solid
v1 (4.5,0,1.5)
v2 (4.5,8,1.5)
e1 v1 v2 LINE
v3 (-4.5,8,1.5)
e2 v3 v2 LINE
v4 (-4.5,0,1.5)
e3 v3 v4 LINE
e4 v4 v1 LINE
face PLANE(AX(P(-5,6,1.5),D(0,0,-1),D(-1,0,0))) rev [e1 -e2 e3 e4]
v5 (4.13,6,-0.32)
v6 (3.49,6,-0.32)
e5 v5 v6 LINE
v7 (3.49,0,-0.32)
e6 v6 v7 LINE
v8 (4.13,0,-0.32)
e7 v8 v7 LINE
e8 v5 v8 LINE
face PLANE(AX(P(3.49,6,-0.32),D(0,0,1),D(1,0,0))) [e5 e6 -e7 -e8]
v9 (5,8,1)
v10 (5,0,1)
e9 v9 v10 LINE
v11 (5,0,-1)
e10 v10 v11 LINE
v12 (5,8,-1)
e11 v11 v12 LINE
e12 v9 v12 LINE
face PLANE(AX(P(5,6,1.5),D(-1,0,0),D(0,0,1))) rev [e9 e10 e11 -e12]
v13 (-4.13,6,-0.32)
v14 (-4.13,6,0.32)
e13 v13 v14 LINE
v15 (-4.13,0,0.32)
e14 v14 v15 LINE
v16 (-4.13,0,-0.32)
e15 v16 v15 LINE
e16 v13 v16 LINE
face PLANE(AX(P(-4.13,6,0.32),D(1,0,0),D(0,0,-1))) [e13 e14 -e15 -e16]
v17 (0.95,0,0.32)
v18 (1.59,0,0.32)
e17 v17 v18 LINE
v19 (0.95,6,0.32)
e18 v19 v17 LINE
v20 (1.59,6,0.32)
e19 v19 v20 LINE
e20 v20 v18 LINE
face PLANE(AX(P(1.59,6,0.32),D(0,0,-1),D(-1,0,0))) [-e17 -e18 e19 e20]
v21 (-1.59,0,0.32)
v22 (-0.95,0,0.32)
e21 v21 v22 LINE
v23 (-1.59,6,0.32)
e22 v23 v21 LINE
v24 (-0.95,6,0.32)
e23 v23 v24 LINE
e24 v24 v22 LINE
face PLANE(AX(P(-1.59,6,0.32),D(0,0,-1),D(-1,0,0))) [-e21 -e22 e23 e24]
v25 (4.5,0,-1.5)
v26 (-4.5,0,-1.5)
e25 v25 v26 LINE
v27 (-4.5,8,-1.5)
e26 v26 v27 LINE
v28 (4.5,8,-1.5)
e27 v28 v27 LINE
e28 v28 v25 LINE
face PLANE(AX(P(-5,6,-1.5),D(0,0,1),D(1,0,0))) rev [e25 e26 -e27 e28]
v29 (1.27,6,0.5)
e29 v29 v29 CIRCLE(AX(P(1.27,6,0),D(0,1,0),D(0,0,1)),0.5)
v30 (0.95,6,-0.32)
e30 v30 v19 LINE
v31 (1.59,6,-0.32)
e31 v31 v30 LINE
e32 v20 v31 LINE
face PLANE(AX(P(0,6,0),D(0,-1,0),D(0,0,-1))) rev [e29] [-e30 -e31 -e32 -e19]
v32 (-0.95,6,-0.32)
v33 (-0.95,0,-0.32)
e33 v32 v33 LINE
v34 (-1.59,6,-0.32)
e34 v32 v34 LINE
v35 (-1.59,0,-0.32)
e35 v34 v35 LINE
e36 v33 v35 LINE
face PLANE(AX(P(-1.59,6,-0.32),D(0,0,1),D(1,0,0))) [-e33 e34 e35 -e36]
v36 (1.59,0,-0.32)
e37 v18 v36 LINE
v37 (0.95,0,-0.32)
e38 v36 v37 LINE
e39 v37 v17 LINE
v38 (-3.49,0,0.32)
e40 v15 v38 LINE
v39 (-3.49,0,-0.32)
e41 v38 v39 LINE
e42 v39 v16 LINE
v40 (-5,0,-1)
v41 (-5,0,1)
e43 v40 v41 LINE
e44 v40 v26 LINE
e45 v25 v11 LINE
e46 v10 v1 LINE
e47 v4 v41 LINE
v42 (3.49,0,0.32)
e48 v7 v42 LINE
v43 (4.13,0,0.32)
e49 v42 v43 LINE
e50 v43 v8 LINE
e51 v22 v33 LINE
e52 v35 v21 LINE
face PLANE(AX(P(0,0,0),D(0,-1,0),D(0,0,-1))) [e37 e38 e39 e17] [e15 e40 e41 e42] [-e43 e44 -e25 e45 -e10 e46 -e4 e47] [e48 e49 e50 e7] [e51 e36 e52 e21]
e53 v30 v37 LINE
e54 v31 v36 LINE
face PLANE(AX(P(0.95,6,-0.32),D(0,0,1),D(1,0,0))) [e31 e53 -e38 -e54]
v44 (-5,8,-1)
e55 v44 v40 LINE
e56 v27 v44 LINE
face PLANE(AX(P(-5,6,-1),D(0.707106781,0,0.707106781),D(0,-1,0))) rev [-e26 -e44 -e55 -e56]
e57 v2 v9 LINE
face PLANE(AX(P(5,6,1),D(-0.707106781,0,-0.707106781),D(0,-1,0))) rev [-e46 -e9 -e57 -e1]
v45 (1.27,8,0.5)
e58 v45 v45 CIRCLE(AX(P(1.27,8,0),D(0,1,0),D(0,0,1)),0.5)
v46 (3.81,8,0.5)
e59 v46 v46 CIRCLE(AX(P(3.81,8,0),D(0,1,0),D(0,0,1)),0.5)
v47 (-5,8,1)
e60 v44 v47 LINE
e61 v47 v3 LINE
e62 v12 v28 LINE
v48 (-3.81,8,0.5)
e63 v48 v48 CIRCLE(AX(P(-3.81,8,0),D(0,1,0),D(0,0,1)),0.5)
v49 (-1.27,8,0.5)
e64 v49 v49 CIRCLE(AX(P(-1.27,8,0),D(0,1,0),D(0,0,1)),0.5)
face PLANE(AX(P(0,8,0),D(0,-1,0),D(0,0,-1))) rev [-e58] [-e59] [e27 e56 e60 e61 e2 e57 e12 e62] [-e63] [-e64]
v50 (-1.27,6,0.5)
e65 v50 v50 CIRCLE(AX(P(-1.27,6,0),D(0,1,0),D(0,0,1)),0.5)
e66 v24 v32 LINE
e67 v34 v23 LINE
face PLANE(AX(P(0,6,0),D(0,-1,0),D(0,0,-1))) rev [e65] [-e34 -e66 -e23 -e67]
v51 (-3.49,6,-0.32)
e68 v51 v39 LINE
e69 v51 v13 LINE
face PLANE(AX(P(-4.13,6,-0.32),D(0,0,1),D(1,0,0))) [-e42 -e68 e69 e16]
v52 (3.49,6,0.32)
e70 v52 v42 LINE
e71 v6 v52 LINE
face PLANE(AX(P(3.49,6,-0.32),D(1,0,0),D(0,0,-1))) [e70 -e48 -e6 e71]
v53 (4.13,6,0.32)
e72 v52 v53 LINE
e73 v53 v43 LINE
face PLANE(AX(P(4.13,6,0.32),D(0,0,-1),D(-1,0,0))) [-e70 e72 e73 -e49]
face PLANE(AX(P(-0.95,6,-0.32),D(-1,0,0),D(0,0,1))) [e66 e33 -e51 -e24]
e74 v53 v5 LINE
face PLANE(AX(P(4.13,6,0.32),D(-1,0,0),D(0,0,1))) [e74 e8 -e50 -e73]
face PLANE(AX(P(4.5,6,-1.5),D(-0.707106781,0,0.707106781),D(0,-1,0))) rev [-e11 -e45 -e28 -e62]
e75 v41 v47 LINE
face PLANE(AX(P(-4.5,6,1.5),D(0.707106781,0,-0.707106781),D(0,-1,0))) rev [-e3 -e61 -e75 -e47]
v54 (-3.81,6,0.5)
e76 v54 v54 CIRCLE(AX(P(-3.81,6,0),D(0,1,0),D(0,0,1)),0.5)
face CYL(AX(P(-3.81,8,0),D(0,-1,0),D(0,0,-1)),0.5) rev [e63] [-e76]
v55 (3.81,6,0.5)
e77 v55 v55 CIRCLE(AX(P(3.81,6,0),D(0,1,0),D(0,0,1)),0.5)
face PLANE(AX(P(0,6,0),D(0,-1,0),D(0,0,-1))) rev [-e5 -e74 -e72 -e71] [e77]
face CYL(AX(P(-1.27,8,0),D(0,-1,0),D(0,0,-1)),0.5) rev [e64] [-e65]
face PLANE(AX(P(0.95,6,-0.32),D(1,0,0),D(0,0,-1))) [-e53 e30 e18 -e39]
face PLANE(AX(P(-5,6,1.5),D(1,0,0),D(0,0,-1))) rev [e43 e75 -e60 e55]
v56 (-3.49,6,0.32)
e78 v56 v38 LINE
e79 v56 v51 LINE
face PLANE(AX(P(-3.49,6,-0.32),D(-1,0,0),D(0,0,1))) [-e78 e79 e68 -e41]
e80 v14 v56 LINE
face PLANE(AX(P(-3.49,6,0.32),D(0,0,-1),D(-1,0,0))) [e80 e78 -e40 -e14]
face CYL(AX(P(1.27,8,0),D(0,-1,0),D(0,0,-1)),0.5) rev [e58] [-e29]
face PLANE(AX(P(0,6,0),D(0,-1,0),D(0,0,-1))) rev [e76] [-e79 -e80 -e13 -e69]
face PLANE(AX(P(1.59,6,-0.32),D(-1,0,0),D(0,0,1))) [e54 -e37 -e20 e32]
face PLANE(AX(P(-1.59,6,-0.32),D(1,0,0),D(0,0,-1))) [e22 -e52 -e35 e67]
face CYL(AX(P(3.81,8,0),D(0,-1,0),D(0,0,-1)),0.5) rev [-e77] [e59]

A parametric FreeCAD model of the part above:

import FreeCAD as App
import Part
import Sketcher


def edges_at(feature, points):
    """Names of the edges that pass closest to the given points."""
    edges = feature.Shape.Edges
    near = lambda p: min(range(len(edges)), key=lambda i: edges[i].distToShape(Part.Vertex(*p))[0])
    return sorted({f"Edge{near(p) + 1}" for p in points})

doc = App.newDocument("Part")
body = doc.addObject("PartDesign::Body", "Body")

sketch1 = body.newObject("Sketcher::SketchObject", "Sketch")
sketch1.AttachmentSupport = (doc.getObject("XZ_Plane"), [""])
sketch1.MapMode = "FlatFace"
sketch1.addGeometry([
    Part.LineSegment(App.Vector(-5, -1.5, 0), App.Vector(-5, 1.5, 0)),
    Part.LineSegment(App.Vector(-5, 1.5, 0), App.Vector(5, 1.5, 0)),
    Part.LineSegment(App.Vector(5, 1.5, 0), App.Vector(5, -1.5, 0)),
    Part.LineSegment(App.Vector(5, -1.5, 0), App.Vector(-5, -1.5, 0)),
    Part.LineSegment(App.Vector(-3.49, 0.32, 0), App.Vector(-4.13, 0.32, 0)),
    Part.LineSegment(App.Vector(-4.13, 0.32, 0), App.Vector(-4.13, -0.32, 0)),
    Part.LineSegment(App.Vector(-4.13, -0.32, 0), App.Vector(-3.49, -0.32, 0)),
    Part.LineSegment(App.Vector(-3.49, -0.32, 0), App.Vector(-3.49, 0.32, 0)),
    Part.LineSegment(App.Vector(-0.95, 0.32, 0), App.Vector(-1.59, 0.32, 0)),
    Part.LineSegment(App.Vector(-1.59, 0.32, 0), App.Vector(-1.59, -0.32, 0)),
    Part.LineSegment(App.Vector(-1.59, -0.32, 0), App.Vector(-0.95, -0.32, 0)),
    Part.LineSegment(App.Vector(-0.95, -0.32, 0), App.Vector(-0.95, 0.32, 0)),
    Part.LineSegment(App.Vector(1.59, 0.32, 0), App.Vector(0.95, 0.32, 0)),
    Part.LineSegment(App.Vector(0.95, 0.32, 0), App.Vector(0.95, -0.32, 0)),
    Part.LineSegment(App.Vector(0.95, -0.32, 0), App.Vector(1.59, -0.32, 0)),
    Part.LineSegment(App.Vector(1.59, -0.32, 0), App.Vector(1.59, 0.32, 0)),
    Part.LineSegment(App.Vector(4.13, 0.32, 0), App.Vector(3.49, 0.32, 0)),
    Part.LineSegment(App.Vector(3.49, 0.32, 0), App.Vector(3.49, -0.32, 0)),
    Part.LineSegment(App.Vector(3.49, -0.32, 0), App.Vector(4.13, -0.32, 0)),
    Part.LineSegment(App.Vector(4.13, -0.32, 0), App.Vector(4.13, 0.32, 0)),
], False)
sketch1.addConstraint([
    Sketcher.Constraint("Coincident", 0, 2, 1, 1),
    Sketcher.Constraint("Coincident", 1, 2, 2, 1),
    Sketcher.Constraint("Coincident", 2, 2, 3, 1),
    Sketcher.Constraint("Coincident", 3, 2, 0, 1),
    Sketcher.Constraint("Coincident", 4, 2, 5, 1),
    Sketcher.Constraint("Coincident", 5, 2, 6, 1),
    Sketcher.Constraint("Coincident", 6, 2, 7, 1),
    Sketcher.Constraint("Coincident", 7, 2, 4, 1),
    Sketcher.Constraint("Coincident", 8, 2, 9, 1),
    Sketcher.Constraint("Coincident", 9, 2, 10, 1),
    Sketcher.Constraint("Coincident", 10, 2, 11, 1),
    Sketcher.Constraint("Coincident", 11, 2, 8, 1),
    Sketcher.Constraint("Coincident", 12, 2, 13, 1),
    Sketcher.Constraint("Coincident", 13, 2, 14, 1),
    Sketcher.Constraint("Coincident", 14, 2, 15, 1),
    Sketcher.Constraint("Coincident", 15, 2, 12, 1),
    Sketcher.Constraint("Coincident", 16, 2, 17, 1),
    Sketcher.Constraint("Coincident", 17, 2, 18, 1),
    Sketcher.Constraint("Coincident", 18, 2, 19, 1),
    Sketcher.Constraint("Coincident", 19, 2, 16, 1),
    Sketcher.Constraint("Vertical", 0),
    Sketcher.Constraint("Horizontal", 1),
    Sketcher.Constraint("Vertical", 2),
    Sketcher.Constraint("Horizontal", 3),
    Sketcher.Constraint("Horizontal", 4),
    Sketcher.Constraint("Vertical", 5),
    Sketcher.Constraint("Horizontal", 6),
    Sketcher.Constraint("Vertical", 7),
    Sketcher.Constraint("Horizontal", 8),
    Sketcher.Constraint("Vertical", 9),
    Sketcher.Constraint("Horizontal", 10),
    Sketcher.Constraint("Vertical", 11),
    Sketcher.Constraint("Horizontal", 12),
    Sketcher.Constraint("Vertical", 13),
    Sketcher.Constraint("Horizontal", 14),
    Sketcher.Constraint("Vertical", 15),
    Sketcher.Constraint("Horizontal", 16),
    Sketcher.Constraint("Vertical", 17),
    Sketcher.Constraint("Horizontal", 18),
    Sketcher.Constraint("Vertical", 19),
    Sketcher.Constraint("Symmetric", 0, 2, 2, 2, -1, 1),
    Sketcher.Constraint("Symmetric", 10, 2, 12, 2, -1, 1),
    Sketcher.Constraint("Symmetric", 8, 2, 14, 2, -1, 1),
    Sketcher.Constraint("Symmetric", 6, 2, 16, 2, -1, 1),
    Sketcher.Constraint("Symmetric", 4, 2, 18, 2, -1, 1),
    Sketcher.Constraint("Horizontal", 7, 2, 8, 2),
    Sketcher.Constraint("Horizontal", 6, 2, 9, 2),
    Sketcher.Constraint("Horizontal", 11, 2, 12, 2),
    Sketcher.Constraint("Equal", 6, 8),
    Sketcher.Constraint("Equal", 18, 5),
    Sketcher.Constraint("DistanceX", 1, 1, 1, 2, 10.0),
    Sketcher.Constraint("DistanceY", 0, 1, 0, 2, 3.0),
    Sketcher.Constraint("DistanceX", 4, 2, 4, 1, 0.64),
    Sketcher.Constraint("DistanceX", 7, 2, 8, 2, 1.9),
    Sketcher.Constraint("DistanceX", 11, 2, 12, 2, 1.9),
])
pad1 = body.newObject("PartDesign::Pad", "Pad")
pad1.Profile = sketch1
pad1.Length = 6
pad1.Reversed = True

sketch2 = body.newObject("Sketcher::SketchObject", "Sketch001")
sketch2.AttachmentSupport = (doc.getObject("XZ_Plane"), [""])
sketch2.MapMode = "FlatFace"
sketch2.AttachmentOffset = App.Placement(App.Vector(0, 0, -6), App.Rotation())
sketch2.addGeometry([
    Part.LineSegment(App.Vector(-5, -1.5, 0), App.Vector(-5, 1.5, 0)),
    Part.LineSegment(App.Vector(-5, 1.5, 0), App.Vector(5, 1.5, 0)),
    Part.LineSegment(App.Vector(5, 1.5, 0), App.Vector(5, -1.5, 0)),
    Part.LineSegment(App.Vector(5, -1.5, 0), App.Vector(-5, -1.5, 0)),
    Part.Circle(App.Vector(-3.81, 0, 0), App.Vector(0, 0, 1), 0.5),
    Part.Circle(App.Vector(-1.27, 0, 0), App.Vector(0, 0, 1), 0.5),
    Part.Circle(App.Vector(1.27, 0, 0), App.Vector(0, 0, 1), 0.5),
    Part.Circle(App.Vector(3.81, 0, 0), App.Vector(0, 0, 1), 0.5),
], False)
sketch2.addConstraint([
    Sketcher.Constraint("Coincident", 0, 2, 1, 1),
    Sketcher.Constraint("Coincident", 1, 2, 2, 1),
    Sketcher.Constraint("Coincident", 2, 2, 3, 1),
    Sketcher.Constraint("Coincident", 3, 2, 0, 1),
    Sketcher.Constraint("Vertical", 0),
    Sketcher.Constraint("Horizontal", 1),
    Sketcher.Constraint("Vertical", 2),
    Sketcher.Constraint("Horizontal", 3),
    Sketcher.Constraint("Equal", 4, 5),
    Sketcher.Constraint("Equal", 5, 6),
    Sketcher.Constraint("Equal", 6, 7),
    Sketcher.Constraint("Symmetric", 5, 3, 6, 3, -1, 1),
    Sketcher.Constraint("Symmetric", 4, 3, 7, 3, -1, 1),
    Sketcher.Constraint("Symmetric", 0, 2, 2, 2, -1, 1),
    Sketcher.Constraint("PointOnObject", 4, 3, -1),
    Sketcher.Constraint("PointOnObject", 5, 3, -1),
    Sketcher.Constraint("Diameter", 4, 1.0),
    Sketcher.Constraint("DistanceX", 1, 1, 1, 2, 10.0),
    Sketcher.Constraint("DistanceY", 0, 1, 0, 2, 3.0),
    Sketcher.Constraint("DistanceX", 4, 3, -1, 1, 3.81),
    Sketcher.Constraint("DistanceX", 5, 3, -1, 1, 1.27),
])
pad2 = body.newObject("PartDesign::Pad", "Pad001")
pad2.Profile = sketch2
pad2.Length = 2
pad2.Reversed = True
doc.recompute()

chamfer = body.newObject("PartDesign::Chamfer", "Chamfer")
chamfer.Base = (pad2, edges_at(pad2, [
    (5, 4, 1.5),
    (-5, 4, 1.5),
    (-5, 4, -1.5),
    (5, 4, -1.5),
]))
chamfer.Size = 0.5

doc.recompute()
